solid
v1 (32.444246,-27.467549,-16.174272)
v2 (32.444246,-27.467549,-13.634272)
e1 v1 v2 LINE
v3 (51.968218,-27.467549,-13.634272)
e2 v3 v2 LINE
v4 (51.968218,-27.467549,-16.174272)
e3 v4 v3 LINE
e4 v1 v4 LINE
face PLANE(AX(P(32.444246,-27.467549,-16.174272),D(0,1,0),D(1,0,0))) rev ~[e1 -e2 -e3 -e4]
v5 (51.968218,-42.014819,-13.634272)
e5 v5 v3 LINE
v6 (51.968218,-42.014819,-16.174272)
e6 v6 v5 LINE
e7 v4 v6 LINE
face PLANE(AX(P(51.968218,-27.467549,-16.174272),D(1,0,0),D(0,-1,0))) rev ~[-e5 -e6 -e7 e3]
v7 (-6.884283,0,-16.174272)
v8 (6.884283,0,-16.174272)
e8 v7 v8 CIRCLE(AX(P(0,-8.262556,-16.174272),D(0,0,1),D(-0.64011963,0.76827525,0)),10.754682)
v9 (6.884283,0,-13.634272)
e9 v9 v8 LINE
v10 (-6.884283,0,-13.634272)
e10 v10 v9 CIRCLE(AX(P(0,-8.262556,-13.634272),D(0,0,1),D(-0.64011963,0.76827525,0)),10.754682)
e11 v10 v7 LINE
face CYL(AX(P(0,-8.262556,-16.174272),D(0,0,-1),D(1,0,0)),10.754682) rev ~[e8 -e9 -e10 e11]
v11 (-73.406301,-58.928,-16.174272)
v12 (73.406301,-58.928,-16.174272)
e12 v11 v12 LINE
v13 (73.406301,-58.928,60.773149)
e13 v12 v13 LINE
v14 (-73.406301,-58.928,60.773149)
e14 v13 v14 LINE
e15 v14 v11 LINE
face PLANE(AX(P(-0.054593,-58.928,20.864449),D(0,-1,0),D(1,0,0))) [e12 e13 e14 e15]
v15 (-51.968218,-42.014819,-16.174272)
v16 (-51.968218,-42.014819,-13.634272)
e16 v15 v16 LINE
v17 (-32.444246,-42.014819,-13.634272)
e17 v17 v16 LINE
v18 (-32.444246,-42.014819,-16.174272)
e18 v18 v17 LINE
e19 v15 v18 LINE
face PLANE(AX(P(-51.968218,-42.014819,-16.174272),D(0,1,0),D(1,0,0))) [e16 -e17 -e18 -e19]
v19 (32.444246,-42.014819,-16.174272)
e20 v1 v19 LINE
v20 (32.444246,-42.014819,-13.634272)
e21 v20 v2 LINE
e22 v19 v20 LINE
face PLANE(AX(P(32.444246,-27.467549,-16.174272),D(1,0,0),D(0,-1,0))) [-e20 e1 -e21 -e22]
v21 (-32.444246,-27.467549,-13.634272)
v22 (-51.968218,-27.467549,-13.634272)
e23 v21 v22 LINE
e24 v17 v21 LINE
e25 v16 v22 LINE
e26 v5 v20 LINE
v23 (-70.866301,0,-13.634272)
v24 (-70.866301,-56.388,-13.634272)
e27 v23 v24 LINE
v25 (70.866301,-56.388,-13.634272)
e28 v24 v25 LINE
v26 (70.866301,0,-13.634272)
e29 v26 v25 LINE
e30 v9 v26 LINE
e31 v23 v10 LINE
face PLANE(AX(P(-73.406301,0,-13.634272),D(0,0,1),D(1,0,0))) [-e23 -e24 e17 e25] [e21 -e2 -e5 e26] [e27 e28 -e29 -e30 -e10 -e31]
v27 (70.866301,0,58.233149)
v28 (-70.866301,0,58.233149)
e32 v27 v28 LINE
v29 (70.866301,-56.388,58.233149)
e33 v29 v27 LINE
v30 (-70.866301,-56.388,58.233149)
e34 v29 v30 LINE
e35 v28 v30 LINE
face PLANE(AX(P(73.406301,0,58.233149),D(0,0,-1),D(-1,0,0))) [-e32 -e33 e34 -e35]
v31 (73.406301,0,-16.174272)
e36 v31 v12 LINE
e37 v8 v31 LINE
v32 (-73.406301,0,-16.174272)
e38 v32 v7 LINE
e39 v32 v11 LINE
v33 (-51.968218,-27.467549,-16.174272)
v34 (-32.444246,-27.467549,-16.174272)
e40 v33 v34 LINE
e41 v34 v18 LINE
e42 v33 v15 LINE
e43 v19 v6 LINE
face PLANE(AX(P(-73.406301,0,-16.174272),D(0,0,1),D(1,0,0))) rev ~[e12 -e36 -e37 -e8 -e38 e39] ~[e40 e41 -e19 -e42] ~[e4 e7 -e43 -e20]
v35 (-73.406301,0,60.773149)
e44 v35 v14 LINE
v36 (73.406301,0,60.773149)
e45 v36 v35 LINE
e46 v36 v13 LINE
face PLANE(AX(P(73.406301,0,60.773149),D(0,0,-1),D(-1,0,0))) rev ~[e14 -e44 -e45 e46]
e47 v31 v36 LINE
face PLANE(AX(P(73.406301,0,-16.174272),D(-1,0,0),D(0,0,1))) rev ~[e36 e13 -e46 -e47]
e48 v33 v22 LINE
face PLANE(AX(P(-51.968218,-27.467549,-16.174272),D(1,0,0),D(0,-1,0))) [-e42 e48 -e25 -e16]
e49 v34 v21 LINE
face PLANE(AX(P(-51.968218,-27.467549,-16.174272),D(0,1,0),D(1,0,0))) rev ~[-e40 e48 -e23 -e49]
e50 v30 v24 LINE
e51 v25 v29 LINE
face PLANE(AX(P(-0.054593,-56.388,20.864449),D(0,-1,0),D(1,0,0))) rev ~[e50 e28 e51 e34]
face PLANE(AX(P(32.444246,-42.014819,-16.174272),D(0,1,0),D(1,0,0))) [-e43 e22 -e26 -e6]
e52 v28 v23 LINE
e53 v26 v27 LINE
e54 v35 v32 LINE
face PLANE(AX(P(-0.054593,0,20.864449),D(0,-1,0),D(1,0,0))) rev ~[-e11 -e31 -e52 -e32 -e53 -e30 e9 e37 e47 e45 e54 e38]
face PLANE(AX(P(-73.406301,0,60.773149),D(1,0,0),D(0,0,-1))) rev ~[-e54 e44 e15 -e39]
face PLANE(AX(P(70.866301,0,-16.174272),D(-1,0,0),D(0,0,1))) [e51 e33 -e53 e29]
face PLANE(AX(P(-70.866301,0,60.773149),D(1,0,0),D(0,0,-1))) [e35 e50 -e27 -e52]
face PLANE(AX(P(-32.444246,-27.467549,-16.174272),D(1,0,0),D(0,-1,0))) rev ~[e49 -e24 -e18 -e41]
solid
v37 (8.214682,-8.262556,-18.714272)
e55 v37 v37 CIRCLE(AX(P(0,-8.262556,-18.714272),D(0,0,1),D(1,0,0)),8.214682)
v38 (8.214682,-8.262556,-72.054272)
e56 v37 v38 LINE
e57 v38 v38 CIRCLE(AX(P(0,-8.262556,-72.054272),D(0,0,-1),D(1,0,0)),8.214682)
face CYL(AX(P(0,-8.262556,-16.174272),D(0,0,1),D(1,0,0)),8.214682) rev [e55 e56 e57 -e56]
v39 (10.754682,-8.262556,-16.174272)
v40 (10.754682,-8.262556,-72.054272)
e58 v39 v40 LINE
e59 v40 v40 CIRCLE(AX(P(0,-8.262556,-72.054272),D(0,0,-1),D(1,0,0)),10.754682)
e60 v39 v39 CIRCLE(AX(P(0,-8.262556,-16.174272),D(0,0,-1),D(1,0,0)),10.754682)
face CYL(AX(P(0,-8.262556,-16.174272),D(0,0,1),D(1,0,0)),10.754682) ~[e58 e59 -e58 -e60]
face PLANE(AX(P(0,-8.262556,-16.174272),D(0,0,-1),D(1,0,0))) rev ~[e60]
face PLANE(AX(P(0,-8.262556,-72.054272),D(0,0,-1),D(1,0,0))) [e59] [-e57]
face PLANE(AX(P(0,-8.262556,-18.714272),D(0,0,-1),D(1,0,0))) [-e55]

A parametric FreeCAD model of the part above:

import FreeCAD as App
import Part
import Sketcher
Q = App.Units.Quantity


def faces_at(feature, points):
    """Names of the faces that lie closest to the given points."""
    faces = feature.Shape.Faces
    near = lambda p: min(range(len(faces)), key=lambda i: faces[i].distToShape(Part.Vertex(*p))[0])
    return sorted({f"Face{near(p) + 1}" for p in points})


def add_polygon(sketch, points):
    """Adds a closed chain of lines whose ends are joined by coincident constraints."""
    first, n = sketch.GeometryCount, len(points)
    for a, b in zip(points, points[1:] + points[:1]):
        sketch.addGeometry(Part.LineSegment(App.Vector(*a, 0), App.Vector(*b, 0)), False)
    for i in range(n):
        sketch.addConstraint(Sketcher.Constraint("Coincident", first + i, 2, first + (i + 1) % n, 1))

doc = App.newDocument("Part")
body = doc.addObject("PartDesign::Body", "Body")

# Sketch on XZ plane
sketch1 = body.newObject("Sketcher::SketchObject", "Sketch")
sketch1.AttachmentSupport = (doc.getObject("XZ_Plane"), [""])
sketch1.MapMode = "FlatFace"
add_polygon(sketch1, [(73, 61), (-73, 61), (-73, -16), (73, -16)])  # lines 0-3
sketch1.addConstraint(Sketcher.Constraint("Horizontal", 0))
sketch1.addConstraint(Sketcher.Constraint("Vertical", 1))
sketch1.addConstraint(Sketcher.Constraint("Horizontal", 2))
sketch1.addConstraint(Sketcher.Constraint("Vertical", 3))
sketch1.addConstraint(Sketcher.Constraint("DistanceX", 0, 2, 0, 1, 146.812602))
sketch1.addConstraint(Sketcher.Constraint("DistanceY", 1, 2, 1, 1, 76.947421))
sketch1.addConstraint(Sketcher.Constraint("DistanceX", 0, 2, -1, 1, 73.406301))
sketch1.addConstraint(Sketcher.Constraint("DistanceY", -1, 1, 0, 2, 60.773149))
pad1 = body.newObject("PartDesign::Pad", "Pad")
pad1.Profile = sketch1
pad1.Length = Q("2.32 in")
doc.recompute()

thickness = body.newObject("PartDesign::Thickness", "Thickness")
thickness.Base = (pad1, faces_at(pad1, [(0, 0, 22.299)]))
thickness.Value = Q("0.1 in")
thickness.Reversed = True
thickness.Join = "Arc"

# Sketch on XY plane
sketch2 = body.newObject("Sketcher::SketchObject", "Sketch001")
sketch2.AttachmentSupport = (doc.getObject("XY_Plane"), [""])
sketch2.MapMode = "FlatFace"
sketch2.AttachmentOffset = App.Placement(App.Vector(0, 0, -16.174272), App.Rotation())
sketch2.addGeometry(Part.Circle(App.Vector(0, -8, 0), App.Vector(0, 0, 1), 11), False)
sketch2.addConstraint(Sketcher.Constraint("PointOnObject", 0, 3, -2))
sketch2.addConstraint(Sketcher.Constraint("Diameter", 0, 21.509364))
sketch2.addConstraint(Sketcher.Constraint("DistanceY", 0, 3, -1, 1, 8.262556))
pocket1 = body.newObject("PartDesign::Pocket", "Pocket")
pocket1.Profile = sketch2
pocket1.Length = Q("1.32 in")
pocket1.Reversed = True

# Sketch on XY plane
sketch3 = body.newObject("Sketcher::SketchObject", "Sketch002")
sketch3.AttachmentSupport = (doc.getObject("XY_Plane"), [""])
sketch3.MapMode = "FlatFace"
sketch3.AttachmentOffset = App.Placement(App.Vector(0, 0, -16.174272), App.Rotation())
add_polygon(sketch3, [(32, -42), (32, -27), (52, -27), (52, -42)])  # lines 0-3
add_polygon(sketch3, [(-52, -42), (-52, -27), (-32, -27), (-32, -42)])  # lines 4-7
sketch3.addConstraint(Sketcher.Constraint("Vertical", 0))
sketch3.addConstraint(Sketcher.Constraint("Horizontal", 1))
sketch3.addConstraint(Sketcher.Constraint("Vertical", 2))
sketch3.addConstraint(Sketcher.Constraint("Horizontal", 3))
sketch3.addConstraint(Sketcher.Constraint("Vertical", 4))
sketch3.addConstraint(Sketcher.Constraint("Horizontal", 5))
sketch3.addConstraint(Sketcher.Constraint("Vertical", 6))
sketch3.addConstraint(Sketcher.Constraint("Horizontal", 7))
sketch3.addConstraint(Sketcher.Constraint("Symmetric", 1, 2, 4, 2, -2))
sketch3.addConstraint(Sketcher.Constraint("Symmetric", 3, 2, 6, 2, -2))
sketch3.addConstraint(Sketcher.Constraint("DistanceX", 1, 1, 1, 2, 19.523971))
sketch3.addConstraint(Sketcher.Constraint("DistanceY", 0, 1, 0, 2, 14.54727))
sketch3.addConstraint(Sketcher.Constraint("DistanceY", 0, 2, -1, 1, 27.467549))
sketch3.addConstraint(Sketcher.Constraint("DistanceX", -1, 1, 0, 2, 32.444246))
pocket2 = body.newObject("PartDesign::Pocket", "Pocket001")
pocket2.Profile = sketch3
pocket2.Length = Q("1.24 in")
pocket2.Reversed = True
body2 = doc.addObject("PartDesign::Body", "Body001")

# Sketch on XY plane
sketch4 = body2.newObject("Sketcher::SketchObject", "Sketch003")
sketch4.AttachmentSupport = (doc.getObject("XY_Plane001"), [""])
sketch4.MapMode = "FlatFace"
sketch4.AttachmentOffset = App.Placement(App.Vector(0, 0, -16.174272), App.Rotation())
sketch4.addGeometry(Part.Circle(App.Vector(0, -8, 0), App.Vector(0, 0, 1), 11), False)
sketch4.addConstraint(Sketcher.Constraint("PointOnObject", 0, 3, -2))
sketch4.addConstraint(Sketcher.Constraint("Diameter", 0, 21.509364))
sketch4.addConstraint(Sketcher.Constraint("DistanceY", 0, 3, -1, 1, 8.262556))
pad2 = body2.newObject("PartDesign::Pad", "Pad001")
pad2.Profile = sketch4
pad2.Length = Q("2.2 in")
pad2.Reversed = True
doc.recompute()

thickness2 = body2.newObject("PartDesign::Thickness", "Thickness001")
thickness2.Base = (pad2, faces_at(pad2, [(0, -8.263, -72.054)]))
thickness2.Value = Q("0.1 in")
thickness2.Reversed = True
thickness2.Join = "Arc"

doc.recompute()
